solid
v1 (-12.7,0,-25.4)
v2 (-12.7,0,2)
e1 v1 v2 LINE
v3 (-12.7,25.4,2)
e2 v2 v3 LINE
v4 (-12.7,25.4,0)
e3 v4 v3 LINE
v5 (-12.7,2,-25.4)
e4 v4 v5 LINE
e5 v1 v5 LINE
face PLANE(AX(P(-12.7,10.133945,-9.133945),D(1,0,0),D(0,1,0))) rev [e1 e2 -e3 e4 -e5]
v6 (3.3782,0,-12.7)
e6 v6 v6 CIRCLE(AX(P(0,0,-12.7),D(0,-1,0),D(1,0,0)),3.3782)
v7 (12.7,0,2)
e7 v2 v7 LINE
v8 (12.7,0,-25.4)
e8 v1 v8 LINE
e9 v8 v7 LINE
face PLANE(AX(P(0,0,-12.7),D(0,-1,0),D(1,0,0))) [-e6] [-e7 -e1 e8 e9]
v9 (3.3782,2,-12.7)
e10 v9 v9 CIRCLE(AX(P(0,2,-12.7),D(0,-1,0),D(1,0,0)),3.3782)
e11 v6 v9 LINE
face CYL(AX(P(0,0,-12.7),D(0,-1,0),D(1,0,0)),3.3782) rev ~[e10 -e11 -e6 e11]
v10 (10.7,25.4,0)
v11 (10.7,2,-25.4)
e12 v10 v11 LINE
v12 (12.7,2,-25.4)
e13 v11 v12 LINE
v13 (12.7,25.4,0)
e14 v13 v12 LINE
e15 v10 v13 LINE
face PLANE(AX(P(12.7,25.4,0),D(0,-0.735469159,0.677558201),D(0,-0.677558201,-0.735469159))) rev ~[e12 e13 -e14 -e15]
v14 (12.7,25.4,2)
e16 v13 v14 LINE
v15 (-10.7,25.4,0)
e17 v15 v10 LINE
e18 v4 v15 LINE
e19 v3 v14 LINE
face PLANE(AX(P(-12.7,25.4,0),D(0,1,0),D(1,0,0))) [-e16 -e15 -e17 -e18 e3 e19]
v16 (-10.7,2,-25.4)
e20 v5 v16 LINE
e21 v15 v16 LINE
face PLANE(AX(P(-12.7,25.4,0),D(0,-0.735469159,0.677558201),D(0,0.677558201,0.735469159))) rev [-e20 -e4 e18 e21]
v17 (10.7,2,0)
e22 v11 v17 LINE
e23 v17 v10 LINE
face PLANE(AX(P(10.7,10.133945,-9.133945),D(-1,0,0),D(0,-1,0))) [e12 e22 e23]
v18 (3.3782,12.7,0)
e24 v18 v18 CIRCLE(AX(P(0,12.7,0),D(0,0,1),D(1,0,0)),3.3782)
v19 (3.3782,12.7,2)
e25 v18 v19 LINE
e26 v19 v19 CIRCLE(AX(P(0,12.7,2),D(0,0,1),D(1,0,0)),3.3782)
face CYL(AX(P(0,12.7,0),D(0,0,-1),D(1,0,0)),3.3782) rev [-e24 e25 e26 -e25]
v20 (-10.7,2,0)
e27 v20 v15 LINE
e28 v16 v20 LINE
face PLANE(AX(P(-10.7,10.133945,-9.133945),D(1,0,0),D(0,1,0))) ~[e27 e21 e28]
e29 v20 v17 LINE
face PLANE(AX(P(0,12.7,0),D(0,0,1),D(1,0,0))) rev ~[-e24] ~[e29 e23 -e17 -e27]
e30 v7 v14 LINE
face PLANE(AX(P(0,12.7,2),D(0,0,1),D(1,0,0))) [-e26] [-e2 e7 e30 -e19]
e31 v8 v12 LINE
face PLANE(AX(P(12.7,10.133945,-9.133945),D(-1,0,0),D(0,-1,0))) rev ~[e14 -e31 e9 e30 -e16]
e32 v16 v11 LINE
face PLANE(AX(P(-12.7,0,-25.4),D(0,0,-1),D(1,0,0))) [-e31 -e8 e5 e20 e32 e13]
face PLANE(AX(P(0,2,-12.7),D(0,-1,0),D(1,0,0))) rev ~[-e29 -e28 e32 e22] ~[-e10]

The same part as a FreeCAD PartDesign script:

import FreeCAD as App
import Part
import Sketcher
from FreeCAD import Vector
Q = App.Units.Quantity

doc = App.newDocument("Part")
body = doc.addObject("PartDesign::Body", "Body")

# Sketch on XY plane
sketch1 = body.newObject("Sketcher::SketchObject", "Sketch")
sketch1.AttachmentSupport = (doc.getObject("XY_Plane"), [""])
sketch1.MapMode = "FlatFace"
sketch1.addGeometry(Part.LineSegment(Vector(-12.7, 25.4, 0), Vector(-12.7, 0, 0)), False)
sketch1.addGeometry(Part.LineSegment(Vector(-12.7, 0, 0), Vector(12.7, 0, 0)), False)
sketch1.addGeometry(Part.LineSegment(Vector(12.7, 0, 0), Vector(12.7, 25.4, 0)), False)
sketch1.addGeometry(Part.LineSegment(Vector(12.7, 25.4, 0), Vector(-12.7, 25.4, 0)), False)
sketch1.addGeometry(Part.Circle(Vector(0, 12.7, 0), Vector(0, 0, 1), 3.3782), False)
sketch1.addConstraint(Sketcher.Constraint("Coincident", 0, 2, 1, 1))
sketch1.addConstraint(Sketcher.Constraint("Coincident", 1, 2, 2, 1))
sketch1.addConstraint(Sketcher.Constraint("Coincident", 2, 2, 3, 1))
sketch1.addConstraint(Sketcher.Constraint("Coincident", 3, 2, 0, 1))
sketch1.addConstraint(Sketcher.Constraint("Vertical", 0))
sketch1.addConstraint(Sketcher.Constraint("Horizontal", 1))
sketch1.addConstraint(Sketcher.Constraint("Vertical", 2))
sketch1.addConstraint(Sketcher.Constraint("Horizontal", 3))
sketch1.addConstraint(Sketcher.Constraint("Symmetric", 0, 2, 1, 2, -1, 1))
sketch1.addConstraint(Sketcher.Constraint("PointOnObject", 4, 3, -2))
sketch1.addConstraint(Sketcher.Constraint("Equal", 3, 0))
sketch1.addConstraint(Sketcher.Constraint("DistanceX", 1, 1, 1, 2, Q("25.4 mm")))
sketch1.addConstraint(Sketcher.Constraint("Diameter", 4, Q("6.7564 mm")))
sketch1.addConstraint(Sketcher.Constraint("DistanceY", -1, 1, 4, 3, Q("12.7 mm")))
pad1 = body.newObject("PartDesign::Pad", "Pad")
pad1.Profile = sketch1
pad1.Length = 2

# Sketch on XZ plane
sketch2 = body.newObject("Sketcher::SketchObject", "Sketch001")
sketch2.AttachmentSupport = (doc.getObject("XZ_Plane"), [""])
sketch2.MapMode = "FlatFace"
sketch2.addGeometry(Part.LineSegment(Vector(-12.7, 0, 0), Vector(-12.7, -25.4, 0)), False)
sketch2.addGeometry(Part.LineSegment(Vector(-12.7, -25.4, 0), Vector(12.7, -25.4, 0)), False)
sketch2.addGeometry(Part.LineSegment(Vector(12.7, -25.4, 0), Vector(12.7, 0, 0)), False)
sketch2.addGeometry(Part.LineSegment(Vector(12.7, 0, 0), Vector(-12.7, 0, 0)), False)
sketch2.addGeometry(Part.Circle(Vector(0, -12.7, 0), Vector(0, 0, 1), 3.3782), False)
sketch2.addConstraint(Sketcher.Constraint("Coincident", 0, 2, 1, 1))
sketch2.addConstraint(Sketcher.Constraint("Coincident", 1, 2, 2, 1))
sketch2.addConstraint(Sketcher.Constraint("Coincident", 2, 2, 3, 1))
sketch2.addConstraint(Sketcher.Constraint("Coincident", 3, 2, 0, 1))
sketch2.addConstraint(Sketcher.Constraint("Vertical", 0))
sketch2.addConstraint(Sketcher.Constraint("Horizontal", 1))
sketch2.addConstraint(Sketcher.Constraint("Vertical", 2))
sketch2.addConstraint(Sketcher.Constraint("Horizontal", 3))
sketch2.addConstraint(Sketcher.Constraint("Symmetric", 2, 2, 3, 2, -1, 1))
sketch2.addConstraint(Sketcher.Constraint("PointOnObject", 4, 3, -2))
sketch2.addConstraint(Sketcher.Constraint("Equal", 3, 0))
sketch2.addConstraint(Sketcher.Constraint("DistanceX", 1, 1, 1, 2, Q("25.4 mm")))
sketch2.addConstraint(Sketcher.Constraint("Diameter", 4, Q("6.7564 mm")))
sketch2.addConstraint(Sketcher.Constraint("DistanceY", 4, 3, -1, 1, Q("12.7 mm")))
pad2 = body.newObject("PartDesign::Pad", "Pad001")
pad2.Profile = sketch2
pad2.Length = 2
pad2.Reversed = True

# Sketch on YZ plane
sketch3 = body.newObject("Sketcher::SketchObject", "Sketch002")
sketch3.AttachmentSupport = (doc.getObject("YZ_Plane"), [""])
sketch3.MapMode = "FlatFace"
sketch3.AttachmentOffset = App.Placement(Vector(0, 0, 12.7), App.Rotation())
sketch3.addGeometry(Part.LineSegment(Vector(2, 0, 0), Vector(2, -25.4, 0)), False)
sketch3.addGeometry(Part.LineSegment(Vector(2, -25.4, 0), Vector(25.4, 0, 0)), False)
sketch3.addGeometry(Part.LineSegment(Vector(25.4, 0, 0), Vector(2, 0, 0)), False)
sketch3.addConstraint(Sketcher.Constraint("Coincident", 0, 2, 1, 1))
sketch3.addConstraint(Sketcher.Constraint("Coincident", 1, 2, 2, 1))
sketch3.addConstraint(Sketcher.Constraint("Coincident", 2, 2, 0, 1))
sketch3.addConstraint(Sketcher.Constraint("Vertical", 0))
sketch3.addConstraint(Sketcher.Constraint("Horizontal", 2))
sketch3.addConstraint(Sketcher.Constraint("PointOnObject", 1, 2, -1))
sketch3.addConstraint(Sketcher.Constraint("DistanceX", 2, 2, 2, 1, Q("23.4 mm")))
sketch3.addConstraint(Sketcher.Constraint("DistanceY", 0, 2, 0, 1, Q("25.4 mm")))
sketch3.addConstraint(Sketcher.Constraint("DistanceX", -1, 1, 0, 2, Q("2 mm")))
pad3 = body.newObject("PartDesign::Pad", "Pad002")
pad3.Profile = sketch3
pad3.Length = 2
pad3.Reversed = True
doc.recompute()

mirrored = body.newObject("PartDesign::Mirrored", "Mirrored")
mirrored.Originals = [pad3]
mirrored.MirrorPlane = (doc.getObject("YZ_Plane"), [""])
body.Tip = mirrored

doc.recompute()
